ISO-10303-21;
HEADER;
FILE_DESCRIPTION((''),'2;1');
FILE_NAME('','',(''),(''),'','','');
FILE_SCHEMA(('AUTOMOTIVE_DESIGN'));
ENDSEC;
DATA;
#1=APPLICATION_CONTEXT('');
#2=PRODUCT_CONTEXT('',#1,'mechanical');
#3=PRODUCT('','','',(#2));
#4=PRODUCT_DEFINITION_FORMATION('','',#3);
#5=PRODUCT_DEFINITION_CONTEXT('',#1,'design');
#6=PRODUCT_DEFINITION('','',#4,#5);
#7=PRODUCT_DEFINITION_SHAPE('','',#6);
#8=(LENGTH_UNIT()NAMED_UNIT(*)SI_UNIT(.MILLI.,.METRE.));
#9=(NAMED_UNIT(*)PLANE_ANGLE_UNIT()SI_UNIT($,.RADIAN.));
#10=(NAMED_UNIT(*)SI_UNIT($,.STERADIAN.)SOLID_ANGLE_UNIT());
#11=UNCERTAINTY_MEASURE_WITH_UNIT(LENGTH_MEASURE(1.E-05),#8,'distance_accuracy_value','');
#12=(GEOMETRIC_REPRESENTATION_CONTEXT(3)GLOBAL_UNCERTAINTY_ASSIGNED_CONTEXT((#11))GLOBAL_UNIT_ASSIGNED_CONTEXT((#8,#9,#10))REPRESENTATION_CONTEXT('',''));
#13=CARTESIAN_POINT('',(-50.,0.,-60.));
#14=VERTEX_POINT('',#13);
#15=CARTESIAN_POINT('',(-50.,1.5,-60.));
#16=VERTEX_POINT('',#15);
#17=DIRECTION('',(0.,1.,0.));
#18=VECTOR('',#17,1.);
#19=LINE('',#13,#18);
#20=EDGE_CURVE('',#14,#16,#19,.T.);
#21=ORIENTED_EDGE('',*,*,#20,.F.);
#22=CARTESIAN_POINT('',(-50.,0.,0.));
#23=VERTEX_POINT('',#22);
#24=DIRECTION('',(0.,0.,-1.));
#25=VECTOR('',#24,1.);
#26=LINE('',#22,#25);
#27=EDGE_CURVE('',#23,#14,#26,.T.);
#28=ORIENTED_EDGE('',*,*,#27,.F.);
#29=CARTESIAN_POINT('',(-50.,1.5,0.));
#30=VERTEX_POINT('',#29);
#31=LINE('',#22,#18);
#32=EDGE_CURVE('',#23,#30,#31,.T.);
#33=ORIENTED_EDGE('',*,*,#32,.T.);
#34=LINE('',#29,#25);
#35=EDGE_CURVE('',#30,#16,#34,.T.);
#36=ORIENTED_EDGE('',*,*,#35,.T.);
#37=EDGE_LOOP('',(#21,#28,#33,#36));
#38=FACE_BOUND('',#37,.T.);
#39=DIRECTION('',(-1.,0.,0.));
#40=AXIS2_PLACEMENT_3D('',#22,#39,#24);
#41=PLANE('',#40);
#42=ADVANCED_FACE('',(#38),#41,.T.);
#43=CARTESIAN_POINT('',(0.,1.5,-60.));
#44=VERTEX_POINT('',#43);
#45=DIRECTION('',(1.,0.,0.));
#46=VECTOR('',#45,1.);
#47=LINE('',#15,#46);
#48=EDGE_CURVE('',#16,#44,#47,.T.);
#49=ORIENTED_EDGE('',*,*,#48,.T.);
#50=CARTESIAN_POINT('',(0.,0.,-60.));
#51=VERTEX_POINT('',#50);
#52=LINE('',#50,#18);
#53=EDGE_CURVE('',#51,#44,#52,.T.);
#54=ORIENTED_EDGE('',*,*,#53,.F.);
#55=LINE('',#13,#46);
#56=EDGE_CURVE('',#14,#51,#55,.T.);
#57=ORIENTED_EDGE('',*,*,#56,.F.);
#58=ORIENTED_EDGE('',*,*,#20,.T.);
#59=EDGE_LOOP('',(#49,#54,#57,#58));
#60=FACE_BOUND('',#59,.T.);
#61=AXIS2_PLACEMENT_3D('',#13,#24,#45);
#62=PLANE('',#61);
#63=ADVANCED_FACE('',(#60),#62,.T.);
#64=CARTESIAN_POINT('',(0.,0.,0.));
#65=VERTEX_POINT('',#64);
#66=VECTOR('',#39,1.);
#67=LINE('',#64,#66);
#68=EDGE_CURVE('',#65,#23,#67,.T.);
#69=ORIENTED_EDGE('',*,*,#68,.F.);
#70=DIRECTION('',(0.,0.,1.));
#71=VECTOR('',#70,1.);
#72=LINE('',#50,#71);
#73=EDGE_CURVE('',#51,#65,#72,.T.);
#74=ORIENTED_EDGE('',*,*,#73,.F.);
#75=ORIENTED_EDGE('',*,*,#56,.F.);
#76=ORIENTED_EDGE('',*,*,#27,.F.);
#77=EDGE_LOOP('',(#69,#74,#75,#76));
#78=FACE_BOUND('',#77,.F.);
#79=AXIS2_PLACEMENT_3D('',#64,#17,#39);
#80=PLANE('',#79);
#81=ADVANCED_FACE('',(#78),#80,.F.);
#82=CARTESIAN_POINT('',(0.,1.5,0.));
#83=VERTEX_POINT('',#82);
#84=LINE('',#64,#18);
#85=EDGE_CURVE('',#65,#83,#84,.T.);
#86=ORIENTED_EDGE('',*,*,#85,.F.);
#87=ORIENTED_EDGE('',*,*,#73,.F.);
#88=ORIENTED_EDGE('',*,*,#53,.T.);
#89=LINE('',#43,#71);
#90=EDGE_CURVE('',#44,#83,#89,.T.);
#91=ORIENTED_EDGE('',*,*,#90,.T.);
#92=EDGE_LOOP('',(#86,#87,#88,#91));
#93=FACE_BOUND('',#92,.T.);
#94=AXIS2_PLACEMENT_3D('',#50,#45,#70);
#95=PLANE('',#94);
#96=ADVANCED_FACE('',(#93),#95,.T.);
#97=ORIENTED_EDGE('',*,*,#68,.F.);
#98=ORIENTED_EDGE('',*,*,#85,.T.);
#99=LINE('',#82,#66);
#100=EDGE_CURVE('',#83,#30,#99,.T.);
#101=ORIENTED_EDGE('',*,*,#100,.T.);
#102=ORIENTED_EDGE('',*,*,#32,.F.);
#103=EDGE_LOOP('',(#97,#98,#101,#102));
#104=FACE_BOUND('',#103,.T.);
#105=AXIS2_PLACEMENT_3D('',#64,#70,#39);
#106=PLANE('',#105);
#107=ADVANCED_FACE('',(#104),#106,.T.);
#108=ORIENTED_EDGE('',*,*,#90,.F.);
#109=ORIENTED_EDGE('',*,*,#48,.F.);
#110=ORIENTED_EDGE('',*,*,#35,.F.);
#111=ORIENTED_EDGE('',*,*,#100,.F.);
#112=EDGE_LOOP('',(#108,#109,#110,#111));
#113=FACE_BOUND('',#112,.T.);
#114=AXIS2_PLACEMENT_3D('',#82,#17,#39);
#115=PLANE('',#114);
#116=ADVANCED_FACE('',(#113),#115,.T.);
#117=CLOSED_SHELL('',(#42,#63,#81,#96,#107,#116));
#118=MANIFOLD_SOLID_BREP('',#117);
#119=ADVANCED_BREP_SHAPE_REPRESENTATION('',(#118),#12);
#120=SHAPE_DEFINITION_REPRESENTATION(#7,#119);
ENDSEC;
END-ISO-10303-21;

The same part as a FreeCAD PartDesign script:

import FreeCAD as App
import Part
import Sketcher

V = App.Vector
Q = App.Units.Quantity


def add_polygon(sketch, points):
    """Adds a closed chain of lines whose ends are joined by coincident constraints."""
    first, n = sketch.GeometryCount, len(points)
    for a, b in zip(points, points[1:] + points[:1]):
        sketch.addGeometry(Part.LineSegment(App.Vector(*a, 0), App.Vector(*b, 0)), False)
    for i in range(n):
        sketch.addConstraint(Sketcher.Constraint("Coincident", first + i, 2, first + (i + 1) % n, 1))

doc = App.newDocument("Part")
body = doc.addObject("PartDesign::Body", "Body")

sketch1 = doc.addObject("Sketcher::SketchObject", "Sketch")
body.addObject(sketch1)
sketch1.AttachmentSupport = (doc.XZ_Plane, [""])
sketch1.MapMode = "FlatFace"
add_polygon(sketch1, [(-50, 0), (0, 0), (0, -60), (-50, -60)])
sketch1.addConstraint([
    Sketcher.Constraint("Horizontal", 0),
    Sketcher.Constraint("Vertical", 1),
    Sketcher.Constraint("Horizontal", 2),
    Sketcher.Constraint("Vertical", 3),
    Sketcher.Constraint("Coincident", 0, 2, -1, 1),
    Sketcher.Constraint("DistanceX", 0, 1, 0, 2, Q("50 mm")),
    Sketcher.Constraint("DistanceY", 1, 2, 1, 1, Q("60 mm")),
])
pad1 = doc.addObject("PartDesign::Pad", "Pad")
body.addObject(pad1)
pad1.Profile = sketch1
pad1.Length = 1.5
pad1.Reversed = True

doc.recompute()
